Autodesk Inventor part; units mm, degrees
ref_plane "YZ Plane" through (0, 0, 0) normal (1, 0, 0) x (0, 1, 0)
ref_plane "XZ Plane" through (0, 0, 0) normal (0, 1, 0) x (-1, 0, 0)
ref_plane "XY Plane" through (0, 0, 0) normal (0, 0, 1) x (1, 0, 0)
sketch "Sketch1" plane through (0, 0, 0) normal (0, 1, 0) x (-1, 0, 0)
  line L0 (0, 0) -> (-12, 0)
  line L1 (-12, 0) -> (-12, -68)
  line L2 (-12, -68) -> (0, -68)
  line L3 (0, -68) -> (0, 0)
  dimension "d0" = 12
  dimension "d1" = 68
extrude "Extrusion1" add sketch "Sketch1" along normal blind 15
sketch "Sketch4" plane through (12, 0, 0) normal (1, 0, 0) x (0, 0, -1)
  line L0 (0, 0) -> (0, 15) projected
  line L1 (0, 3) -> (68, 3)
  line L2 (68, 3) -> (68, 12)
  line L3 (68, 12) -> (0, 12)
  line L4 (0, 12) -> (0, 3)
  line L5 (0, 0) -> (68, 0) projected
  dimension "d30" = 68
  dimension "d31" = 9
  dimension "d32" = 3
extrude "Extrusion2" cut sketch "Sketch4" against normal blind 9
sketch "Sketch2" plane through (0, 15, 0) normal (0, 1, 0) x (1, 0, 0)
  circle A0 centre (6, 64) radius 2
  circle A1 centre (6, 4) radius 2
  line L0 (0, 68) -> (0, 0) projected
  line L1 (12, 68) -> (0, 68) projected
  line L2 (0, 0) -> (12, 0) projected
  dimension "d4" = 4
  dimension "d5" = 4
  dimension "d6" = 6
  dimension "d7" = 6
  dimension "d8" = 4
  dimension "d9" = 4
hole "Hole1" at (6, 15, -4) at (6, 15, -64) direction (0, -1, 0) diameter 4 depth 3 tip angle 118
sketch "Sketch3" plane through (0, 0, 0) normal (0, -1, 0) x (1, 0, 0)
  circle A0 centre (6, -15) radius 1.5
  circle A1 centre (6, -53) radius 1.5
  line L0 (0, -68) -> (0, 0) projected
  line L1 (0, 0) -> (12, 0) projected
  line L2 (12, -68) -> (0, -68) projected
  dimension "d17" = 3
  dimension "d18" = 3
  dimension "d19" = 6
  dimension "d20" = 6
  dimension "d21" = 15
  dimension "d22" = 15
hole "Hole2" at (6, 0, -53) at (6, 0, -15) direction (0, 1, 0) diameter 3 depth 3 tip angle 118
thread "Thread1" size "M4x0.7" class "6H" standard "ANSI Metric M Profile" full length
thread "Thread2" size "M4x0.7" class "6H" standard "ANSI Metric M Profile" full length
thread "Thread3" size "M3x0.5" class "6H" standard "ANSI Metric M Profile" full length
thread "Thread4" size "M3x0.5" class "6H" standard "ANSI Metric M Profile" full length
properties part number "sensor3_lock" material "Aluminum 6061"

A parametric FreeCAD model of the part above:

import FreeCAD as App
import Part
import Sketcher
from FreeCAD import Vector


def add_polygon(sketch, points):
    """Adds a closed chain of lines whose ends are joined by coincident constraints."""
    first, n = sketch.GeometryCount, len(points)
    for a, b in zip(points, points[1:] + points[:1]):
        sketch.addGeometry(Part.LineSegment(App.Vector(*a, 0), App.Vector(*b, 0)), False)
    for i in range(n):
        sketch.addConstraint(Sketcher.Constraint("Coincident", first + i, 2, first + (i + 1) % n, 1))

doc = App.newDocument("Part")
body = doc.addObject("PartDesign::Body", "Body")

# Sketch on XZ plane
sketch1 = body.newObject("Sketcher::SketchObject", "Sketch")
sketch1.AttachmentSupport = (doc.getObject("XZ_Plane"), [""])
sketch1.MapMode = "FlatFace"
add_polygon(sketch1, [(0, -68), (0, 0), (12, 0), (12, -68)])  # lines 0-3
sketch1.addConstraint(Sketcher.Constraint("Vertical", 0))
sketch1.addConstraint(Sketcher.Constraint("Horizontal", 1))
sketch1.addConstraint(Sketcher.Constraint("Vertical", 2))
sketch1.addConstraint(Sketcher.Constraint("Horizontal", 3))
sketch1.addConstraint(Sketcher.Constraint("Coincident", 0, 2, -1, 1))
sketch1.addConstraint(Sketcher.Constraint("DistanceX", 1, 1, 1, 2, 12.0))
sketch1.addConstraint(Sketcher.Constraint("DistanceY", 0, 1, 0, 2, 68.0))
pad1 = body.newObject("PartDesign::Pad", "Pad")
pad1.Profile = sketch1
pad1.Length = 15
pad1.Reversed = True

# Sketch on YZ plane
sketch2 = body.newObject("Sketcher::SketchObject", "Sketch001")
sketch2.AttachmentSupport = (doc.getObject("YZ_Plane"), [""])
sketch2.MapMode = "FlatFace"
sketch2.AttachmentOffset = App.Placement(Vector(0, 0, 12), App.Rotation())
add_polygon(sketch2, [(12, 0), (3, 0), (3, -68), (12, -68)])  # lines 0-3
sketch2.addConstraint(Sketcher.Constraint("Horizontal", 0))
sketch2.addConstraint(Sketcher.Constraint("Vertical", 1))
sketch2.addConstraint(Sketcher.Constraint("Horizontal", 2))
sketch2.addConstraint(Sketcher.Constraint("Vertical", 3))
sketch2.addConstraint(Sketcher.Constraint("PointOnObject", 0, 2, -1))
sketch2.addConstraint(Sketcher.Constraint("DistanceX", 0, 2, 0, 1, 9.0))
sketch2.addConstraint(Sketcher.Constraint("DistanceY", 1, 2, 1, 1, 68.0))
sketch2.addConstraint(Sketcher.Constraint("DistanceX", -1, 1, 0, 2, 3.0))
pocket1 = body.newObject("PartDesign::Pocket", "Pocket")
pocket1.Profile = sketch2
pocket1.Length = 9

# Sketch on XZ plane
sketch3 = body.newObject("Sketcher::SketchObject", "Sketch002")
sketch3.AttachmentSupport = (doc.getObject("XZ_Plane"), [""])
sketch3.MapMode = "FlatFace"
sketch3.AttachmentOffset = App.Placement(Vector(0, 0, -15), App.Rotation())
sketch3.addGeometry(Part.Circle(Vector(6, -4, 0), Vector(0, 0, 1), 2), False)
sketch3.addGeometry(Part.Circle(Vector(6, -64, 0), Vector(0, 0, 1), 2), False)
sketch3.addConstraint(Sketcher.Constraint("Equal", 0, 1))
sketch3.addConstraint(Sketcher.Constraint("Vertical", 0, 3, 1, 3))
sketch3.addConstraint(Sketcher.Constraint("Diameter", 0, 4.0))
sketch3.addConstraint(Sketcher.Constraint("DistanceX", -1, 1, 0, 3, 6.0))
sketch3.addConstraint(Sketcher.Constraint("DistanceY", 0, 3, -1, 1, 4.0))
sketch3.addConstraint(Sketcher.Constraint("DistanceY", 1, 3, -1, 1, 64.0))
doc.recompute()
hole = body.newObject("PartDesign::Hole", "Hole")
hole.Profile = sketch3
hole.ThreadType = "None"
hole.Diameter = 4
hole.DepthType = "Dimension"
hole.Depth = 3
hole.DrillPoint = "Angled"
hole.DrillPointAngle = 118
hole.Reversed = True

# Sketch on XZ plane
sketch4 = body.newObject("Sketcher::SketchObject", "Sketch003")
sketch4.AttachmentSupport = (doc.getObject("XZ_Plane"), [""])
sketch4.MapMode = "FlatFace"
sketch4.addGeometry(Part.Circle(Vector(6, -53, 0), Vector(0, 0, 1), 1.5), False)
sketch4.addGeometry(Part.Circle(Vector(6, -15, 0), Vector(0, 0, 1), 1.5), False)
sketch4.addConstraint(Sketcher.Constraint("Equal", 0, 1))
sketch4.addConstraint(Sketcher.Constraint("Vertical", 0, 3, 1, 3))
sketch4.addConstraint(Sketcher.Constraint("Diameter", 0, 3.0))
sketch4.addConstraint(Sketcher.Constraint("DistanceX", -1, 1, 0, 3, 6.0))
sketch4.addConstraint(Sketcher.Constraint("DistanceY", 0, 3, -1, 1, 53.0))
sketch4.addConstraint(Sketcher.Constraint("DistanceY", 1, 3, -1, 1, 15.0))
doc.recompute()
hole2 = body.newObject("PartDesign::Hole", "Hole001")
hole2.Profile = sketch4
hole2.ThreadType = "None"
hole2.Diameter = 3
hole2.DepthType = "Dimension"
hole2.Depth = 3
hole2.DrillPoint = "Angled"
hole2.DrillPointAngle = 118

doc.recompute()
